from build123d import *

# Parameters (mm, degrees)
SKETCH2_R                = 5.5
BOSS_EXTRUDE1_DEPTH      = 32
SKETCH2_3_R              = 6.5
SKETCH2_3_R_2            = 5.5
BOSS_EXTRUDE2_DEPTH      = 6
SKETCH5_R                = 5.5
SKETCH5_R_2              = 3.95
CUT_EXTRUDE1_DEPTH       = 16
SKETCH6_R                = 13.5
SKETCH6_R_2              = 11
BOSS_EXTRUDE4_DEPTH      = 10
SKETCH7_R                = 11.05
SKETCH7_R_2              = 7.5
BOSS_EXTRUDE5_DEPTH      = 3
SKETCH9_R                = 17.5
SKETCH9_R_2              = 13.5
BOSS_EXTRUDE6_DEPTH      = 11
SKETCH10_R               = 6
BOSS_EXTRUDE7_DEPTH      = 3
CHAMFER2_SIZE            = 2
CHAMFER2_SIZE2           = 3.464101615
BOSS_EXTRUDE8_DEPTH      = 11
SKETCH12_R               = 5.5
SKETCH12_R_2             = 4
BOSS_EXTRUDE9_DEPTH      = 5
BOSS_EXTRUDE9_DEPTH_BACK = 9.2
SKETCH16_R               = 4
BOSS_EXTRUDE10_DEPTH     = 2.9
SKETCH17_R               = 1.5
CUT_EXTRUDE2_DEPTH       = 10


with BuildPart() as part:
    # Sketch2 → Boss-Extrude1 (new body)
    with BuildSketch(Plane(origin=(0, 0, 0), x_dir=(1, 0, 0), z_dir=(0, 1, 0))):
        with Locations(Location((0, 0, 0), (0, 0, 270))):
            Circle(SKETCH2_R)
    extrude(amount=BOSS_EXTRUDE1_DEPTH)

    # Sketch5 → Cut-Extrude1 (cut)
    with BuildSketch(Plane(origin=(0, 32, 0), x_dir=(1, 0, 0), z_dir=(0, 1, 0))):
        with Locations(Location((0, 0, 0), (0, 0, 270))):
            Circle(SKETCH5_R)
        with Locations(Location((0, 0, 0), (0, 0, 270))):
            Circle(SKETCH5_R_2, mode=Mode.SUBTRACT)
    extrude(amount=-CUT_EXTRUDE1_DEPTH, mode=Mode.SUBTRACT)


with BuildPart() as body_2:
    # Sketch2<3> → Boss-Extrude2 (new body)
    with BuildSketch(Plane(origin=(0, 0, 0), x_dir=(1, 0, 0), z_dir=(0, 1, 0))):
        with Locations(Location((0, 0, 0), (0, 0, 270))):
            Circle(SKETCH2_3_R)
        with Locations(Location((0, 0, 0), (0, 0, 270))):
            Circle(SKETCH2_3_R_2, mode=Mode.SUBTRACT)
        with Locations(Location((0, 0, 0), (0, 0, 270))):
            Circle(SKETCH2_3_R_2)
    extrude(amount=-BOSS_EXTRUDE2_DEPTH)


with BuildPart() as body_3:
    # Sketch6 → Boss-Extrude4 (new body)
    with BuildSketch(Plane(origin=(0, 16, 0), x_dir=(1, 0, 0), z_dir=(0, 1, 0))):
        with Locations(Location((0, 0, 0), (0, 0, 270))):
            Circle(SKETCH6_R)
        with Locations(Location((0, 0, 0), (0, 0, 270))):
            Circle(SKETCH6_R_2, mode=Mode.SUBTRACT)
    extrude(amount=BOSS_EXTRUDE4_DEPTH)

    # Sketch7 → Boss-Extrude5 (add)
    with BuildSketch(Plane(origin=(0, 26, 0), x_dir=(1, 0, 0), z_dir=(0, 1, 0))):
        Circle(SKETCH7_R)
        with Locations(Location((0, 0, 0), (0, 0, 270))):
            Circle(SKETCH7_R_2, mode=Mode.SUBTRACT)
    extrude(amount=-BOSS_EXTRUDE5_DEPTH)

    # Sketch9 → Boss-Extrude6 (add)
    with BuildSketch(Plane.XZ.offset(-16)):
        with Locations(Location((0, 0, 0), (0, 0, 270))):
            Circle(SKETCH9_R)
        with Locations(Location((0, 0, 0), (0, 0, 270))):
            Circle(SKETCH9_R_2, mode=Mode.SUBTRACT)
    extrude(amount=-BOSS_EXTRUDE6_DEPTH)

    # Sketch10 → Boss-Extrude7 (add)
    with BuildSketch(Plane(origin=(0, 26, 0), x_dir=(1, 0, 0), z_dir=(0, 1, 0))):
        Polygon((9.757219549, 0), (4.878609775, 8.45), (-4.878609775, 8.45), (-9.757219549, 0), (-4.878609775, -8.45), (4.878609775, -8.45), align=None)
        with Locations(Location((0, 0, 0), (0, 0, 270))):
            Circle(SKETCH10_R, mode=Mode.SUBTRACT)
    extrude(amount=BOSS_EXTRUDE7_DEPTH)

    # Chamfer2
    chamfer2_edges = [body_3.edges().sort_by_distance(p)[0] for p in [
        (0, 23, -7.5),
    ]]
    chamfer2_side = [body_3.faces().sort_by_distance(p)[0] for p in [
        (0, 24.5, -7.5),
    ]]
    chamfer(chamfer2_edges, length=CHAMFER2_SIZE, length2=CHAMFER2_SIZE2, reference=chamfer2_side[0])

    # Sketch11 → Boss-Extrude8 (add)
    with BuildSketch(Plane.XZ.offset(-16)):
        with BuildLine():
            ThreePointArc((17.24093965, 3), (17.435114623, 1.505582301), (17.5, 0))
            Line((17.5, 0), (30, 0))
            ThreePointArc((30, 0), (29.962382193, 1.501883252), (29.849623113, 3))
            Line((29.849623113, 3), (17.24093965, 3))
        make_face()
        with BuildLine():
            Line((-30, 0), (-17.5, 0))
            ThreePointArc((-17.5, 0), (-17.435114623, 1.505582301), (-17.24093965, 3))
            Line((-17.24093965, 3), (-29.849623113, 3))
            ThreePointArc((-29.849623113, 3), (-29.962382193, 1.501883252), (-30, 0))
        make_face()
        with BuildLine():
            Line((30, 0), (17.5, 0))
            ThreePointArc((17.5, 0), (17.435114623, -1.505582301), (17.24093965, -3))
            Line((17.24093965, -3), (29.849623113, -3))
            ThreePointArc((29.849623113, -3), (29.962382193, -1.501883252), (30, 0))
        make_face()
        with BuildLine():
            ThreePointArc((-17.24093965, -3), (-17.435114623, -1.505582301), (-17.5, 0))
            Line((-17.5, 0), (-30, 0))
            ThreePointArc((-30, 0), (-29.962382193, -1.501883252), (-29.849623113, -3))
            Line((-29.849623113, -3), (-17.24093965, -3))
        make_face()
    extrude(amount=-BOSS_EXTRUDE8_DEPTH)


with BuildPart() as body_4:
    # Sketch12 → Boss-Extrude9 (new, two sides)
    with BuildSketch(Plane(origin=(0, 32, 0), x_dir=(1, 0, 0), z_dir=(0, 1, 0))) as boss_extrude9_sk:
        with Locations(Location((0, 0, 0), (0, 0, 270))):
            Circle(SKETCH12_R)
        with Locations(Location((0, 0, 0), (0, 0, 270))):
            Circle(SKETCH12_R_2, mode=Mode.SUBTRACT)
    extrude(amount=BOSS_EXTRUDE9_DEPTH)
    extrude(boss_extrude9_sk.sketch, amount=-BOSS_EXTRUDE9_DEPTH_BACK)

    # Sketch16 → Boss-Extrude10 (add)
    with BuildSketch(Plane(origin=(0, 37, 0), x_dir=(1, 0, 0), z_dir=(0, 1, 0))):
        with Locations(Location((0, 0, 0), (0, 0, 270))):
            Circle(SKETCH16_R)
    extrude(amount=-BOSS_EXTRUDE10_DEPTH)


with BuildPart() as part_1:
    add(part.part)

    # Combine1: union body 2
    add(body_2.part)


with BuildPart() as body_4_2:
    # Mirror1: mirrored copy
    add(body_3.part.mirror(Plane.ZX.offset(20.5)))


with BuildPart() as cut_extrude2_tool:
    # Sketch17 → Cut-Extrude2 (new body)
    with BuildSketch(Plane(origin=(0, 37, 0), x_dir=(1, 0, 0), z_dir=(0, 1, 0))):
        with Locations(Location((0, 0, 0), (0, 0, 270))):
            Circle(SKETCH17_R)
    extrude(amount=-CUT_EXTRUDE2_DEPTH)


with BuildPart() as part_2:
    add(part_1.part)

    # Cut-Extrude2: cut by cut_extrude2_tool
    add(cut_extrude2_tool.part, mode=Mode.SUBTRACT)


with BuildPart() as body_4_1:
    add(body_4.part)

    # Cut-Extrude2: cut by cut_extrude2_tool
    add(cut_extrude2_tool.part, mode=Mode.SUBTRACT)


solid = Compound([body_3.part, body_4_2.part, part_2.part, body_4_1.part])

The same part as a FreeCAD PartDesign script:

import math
import FreeCAD as App
import Part
import Sketcher
from FreeCAD import Vector
Q = App.Units.Quantity


def edges_at(feature, points):
    """Names of the edges that pass closest to the given points."""
    edges = feature.Shape.Edges
    near = lambda p: min(range(len(edges)), key=lambda i: edges[i].distToShape(Part.Vertex(*p))[0])
    return sorted({f"Edge{near(p) + 1}" for p in points})

doc = App.newDocument("Part")
body = doc.addObject("PartDesign::Body", "Body")

# Sketch on XZ plane
sketch1 = body.newObject("Sketcher::SketchObject", "Sketch")
sketch1.AttachmentSupport = (doc.getObject("XZ_Plane"), [""])
sketch1.MapMode = "FlatFace"
sketch1.addGeometry(Part.Circle(Vector(0, 0, 0), Vector(0, 0, 1), 6), False)
sketch1.addConstraint([
    Sketcher.Constraint("Coincident", 0, 3, -1, 1),
    Sketcher.Constraint("Diameter", 0, 11.0),
])
pad1 = body.newObject("PartDesign::Pad", "Pad")
pad1.Profile = sketch1
pad1.Length = 32
pad1.Reversed = True

# Sketch on XZ plane
sketch2 = body.newObject("Sketcher::SketchObject", "Sketch001")
sketch2.AttachmentSupport = (doc.getObject("XZ_Plane"), [""])
sketch2.MapMode = "FlatFace"
sketch2.AttachmentOffset = App.Placement(Vector(0, 0, -32), App.Rotation())
sketch2.addGeometry([
    Part.Circle(Vector(0, 0, 0), Vector(0, 0, 1), 5.5),
    Part.Circle(Vector(0, 0, 0), Vector(0, 0, 1), 4),
], False)
sketch2.addConstraint([
    Sketcher.Constraint("Coincident", 0, 3, -1, 1),
    Sketcher.Constraint("Coincident", 1, 3, -1, 1),
    Sketcher.Constraint("Diameter", 0, 11.0),
    Sketcher.Constraint("Diameter", 1, 7.9),
])
pocket1 = body.newObject("PartDesign::Pocket", "Pocket")
pocket1.Profile = sketch2
pocket1.Length = 16
pocket1.Reversed = True
body2 = doc.addObject("PartDesign::Body", "Body001")

# Sketch on XZ plane
sketch3 = body2.newObject("Sketcher::SketchObject", "Sketch002")
sketch3.AttachmentSupport = (doc.getObject("XZ_Plane001"), [""])
sketch3.MapMode = "FlatFace"
sketch3.addGeometry(Part.Circle(Vector(0, 0, 0), Vector(0, 0, 1), 6), False)
sketch3.addConstraint([
    Sketcher.Constraint("Coincident", 0, 3, -1, 1),
    Sketcher.Constraint("Diameter", 0, 13.0),
])
pad2 = body2.newObject("PartDesign::Pad", "Pad001")
pad2.Profile = sketch3
pad2.Length = 6
body3 = doc.addObject("PartDesign::Body", "Body002")

# Sketch on XZ plane
sketch4 = body3.newObject("Sketcher::SketchObject", "Sketch003")
sketch4.AttachmentSupport = (doc.getObject("XZ_Plane002"), [""])
sketch4.MapMode = "FlatFace"
sketch4.AttachmentOffset = App.Placement(Vector(0, 0, -16), App.Rotation())
sketch4.addGeometry([
    Part.Circle(Vector(0, 0, 0), Vector(0, 0, 1), 14),
    Part.Circle(Vector(0, 0, 0), Vector(0, 0, 1), 11),
], False)
sketch4.addConstraint([
    Sketcher.Constraint("Coincident", 0, 3, -1, 1),
    Sketcher.Constraint("Coincident", 1, 3, -1, 1),
    Sketcher.Constraint("Diameter", 0, 27.0),
    Sketcher.Constraint("Diameter", 1, 22.0),
])
pad3 = body3.newObject("PartDesign::Pad", "Pad002")
pad3.Profile = sketch4
pad3.Length = 10
pad3.Reversed = True

# Sketch on XZ plane
sketch5 = body3.newObject("Sketcher::SketchObject", "Sketch004")
sketch5.AttachmentSupport = (doc.getObject("XZ_Plane002"), [""])
sketch5.MapMode = "FlatFace"
sketch5.AttachmentOffset = App.Placement(Vector(0, 0, -26), App.Rotation())
sketch5.addGeometry([
    Part.Circle(Vector(0, 0, 0), Vector(0, 0, 1), 11),
    Part.Circle(Vector(0, 0, 0), Vector(0, 0, 1), 8),
], False)
sketch5.addConstraint([
    Sketcher.Constraint("Coincident", 0, 3, -1, 1),
    Sketcher.Constraint("Coincident", 1, 3, -1, 1),
    Sketcher.Constraint("Diameter", 1, 15.0),
    Sketcher.Constraint("Diameter", 0, 22.1),
])
pad4 = body3.newObject("PartDesign::Pad", "Pad003")
pad4.Profile = sketch5
pad4.Length = 3

# Sketch on XZ plane
sketch6 = body3.newObject("Sketcher::SketchObject", "Sketch005")
sketch6.AttachmentSupport = (doc.getObject("XZ_Plane002"), [""])
sketch6.MapMode = "FlatFace"
sketch6.AttachmentOffset = App.Placement(Vector(0, 0, -16), App.Rotation())
sketch6.addGeometry([
    Part.Circle(Vector(0, 0, 0), Vector(0, 0, 1), 18),
    Part.Circle(Vector(0, 0, 0), Vector(0, 0, 1), 14),
], False)
sketch6.addConstraint([
    Sketcher.Constraint("Coincident", 0, 3, -1, 1),
    Sketcher.Constraint("Coincident", 1, 3, -1, 1),
    Sketcher.Constraint("Diameter", 0, 35.0),
    Sketcher.Constraint("Diameter", 1, 27.0),
])
pad5 = body3.newObject("PartDesign::Pad", "Pad004")
pad5.Profile = sketch6
pad5.Length = 11
pad5.Reversed = True

# Sketch on XZ plane
sketch7 = body3.newObject("Sketcher::SketchObject", "Sketch006")
sketch7.AttachmentSupport = (doc.getObject("XZ_Plane002"), [""])
sketch7.MapMode = "FlatFace"
sketch7.AttachmentOffset = App.Placement(Vector(0, 0, -26), App.Rotation())
sketch7.addGeometry([
    Part.LineSegment(Vector(10, 0, 0), Vector(5, -8, 0)),  # 0
    Part.LineSegment(Vector(5, -8, 0), Vector(-5, -8, 0)),  # 1
    Part.LineSegment(Vector(-5, -8, 0), Vector(-10, 0, 0)),  # 2
    Part.LineSegment(Vector(-10, 0, 0), Vector(-5, 8, 0)),  # 3
    Part.LineSegment(Vector(-5, 8, 0), Vector(5, 8, 0)),  # 4
    Part.LineSegment(Vector(5, 8, 0), Vector(10, 0, 0)),  # 5
    Part.Circle(Vector(0, 0, 0), Vector(0, 0, 1), 6),  # 6
], False)
sketch7.addConstraint([
    Sketcher.Constraint("Coincident", 0, 2, 1, 1),
    Sketcher.Constraint("Coincident", 1, 2, 2, 1),
    Sketcher.Constraint("Coincident", 2, 2, 3, 1),
    Sketcher.Constraint("Coincident", 3, 2, 4, 1),
    Sketcher.Constraint("Coincident", 4, 2, 5, 1),
    Sketcher.Constraint("Coincident", 5, 2, 0, 1),
    Sketcher.Constraint("Horizontal", 1),
    Sketcher.Constraint("Horizontal", 4),
    Sketcher.Constraint("Coincident", 6, 3, -1, 1),
    Sketcher.Constraint("Symmetric", 0, 2, 3, 2, -1, 1),
    Sketcher.Constraint("Symmetric", 2, 2, 5, 2, -1, 1),
    Sketcher.Constraint("PointOnObject", 2, 2, -1),
    Sketcher.Constraint("Parallel", 2, 5),
    Sketcher.Constraint("Vertical", 1, 2, 3, 2),
    Sketcher.Constraint("Diameter", 6, 12.0),
    Sketcher.Constraint("Angle", 0, Q("-120 deg")),
    Sketcher.Constraint("DistanceY", 1, 2, 3, 2, 16.9),
    Sketcher.Constraint("DistanceX", 1, 2, 1, 1, 9.75722),
])
pad6 = body3.newObject("PartDesign::Pad", "Pad005")
pad6.Profile = sketch7
pad6.Length = 3
pad6.Reversed = True
doc.recompute()

chamfer = body3.newObject("PartDesign::Chamfer", "Chamfer")
chamfer.Base = (pad6, edges_at(pad6, [(0, 23, -7.5)]))
chamfer.ChamferType = "Two distances"
chamfer.Size = 2
chamfer.Size2 = 3.464102
chamfer.FlipDirection = True

# Sketch on XZ plane
sketch8 = body3.newObject("Sketcher::SketchObject", "Sketch007")
sketch8.AttachmentSupport = (doc.getObject("XZ_Plane002"), [""])
sketch8.MapMode = "FlatFace"
sketch8.AttachmentOffset = App.Placement(Vector(0, 0, -16), App.Rotation())
sketch8.addGeometry([
    Part.ArcOfCircle(Part.Circle(Vector(0, 0, 0), Vector(0, 0, 1), 30), math.radians(0), math.radians(5.74)),  # 0
    Part.LineSegment(Vector(29.8, 3, 0), Vector(17.2, 3, 0)),  # 1
    Part.ArcOfCircle(Part.Circle(Vector(0, 0, 0), Vector(0, 0, 1), 17.5), math.radians(0), math.radians(9.87)),  # 2
    Part.ArcOfCircle(Part.Circle(Vector(0, 0, 0), Vector(0, 0, 1), 17.5), math.radians(-9.87), math.radians(0)),  # 3
    Part.LineSegment(Vector(17.2, -3, 0), Vector(29.8, -3, 0)),  # 4
    Part.ArcOfCircle(Part.Circle(Vector(0, 0, 0), Vector(0, 0, 1), 30), math.radians(-5.74), math.radians(0)),  # 5
    Part.LineSegment(Vector(-17.2, 3, 0), Vector(-29.8, 3, 0)),  # 6
    Part.ArcOfCircle(Part.Circle(Vector(0, 0, 0), Vector(0, 0, 1), 30), math.radians(174.26), math.radians(180)),  # 7
    Part.ArcOfCircle(Part.Circle(Vector(0, 0, 0), Vector(0, 0, 1), 30), math.radians(-180), math.radians(-174.26)),  # 8
    Part.LineSegment(Vector(-29.8, -3, 0), Vector(-17.2, -3, 0)),  # 9
    Part.ArcOfCircle(Part.Circle(Vector(0, 0, 0), Vector(0, 0, 1), 17.5), math.radians(-180), math.radians(-170.13)),  # 10
    Part.ArcOfCircle(Part.Circle(Vector(0, 0, 0), Vector(0, 0, 1), 17.5), math.radians(170.13), math.radians(180)),  # 11
], False)
sketch8.addConstraint([
    Sketcher.Constraint("Coincident", 0, 2, 1, 1),
    Sketcher.Constraint("Coincident", 1, 2, 2, 2),
    Sketcher.Constraint("Tangent", 2, 1, 3, 2),
    Sketcher.Constraint("Coincident", 3, 1, 4, 1),
    Sketcher.Constraint("Coincident", 4, 2, 5, 1),
    Sketcher.Constraint("Tangent", 5, 2, 0, 1),
    Sketcher.Constraint("Coincident", 6, 2, 7, 1),
    Sketcher.Constraint("Tangent", 7, 2, 8, 1),
    Sketcher.Constraint("Coincident", 8, 2, 9, 1),
    Sketcher.Constraint("Coincident", 9, 2, 10, 2),
    Sketcher.Constraint("Tangent", 10, 1, 11, 2),
    Sketcher.Constraint("Coincident", 11, 1, 6, 1),
    Sketcher.Constraint("Horizontal", 1),
    Sketcher.Constraint("Horizontal", 4),
    Sketcher.Constraint("Horizontal", 6),
    Sketcher.Constraint("Horizontal", 9),
    Sketcher.Constraint("Coincident", 0, 3, -1, 1),
    Sketcher.Constraint("Coincident", 2, 3, -1, 1),
    Sketcher.Constraint("Coincident", 7, 3, -1, 1),
    Sketcher.Constraint("Coincident", 10, 3, -1, 1),
    Sketcher.Constraint("Equal", 2, 3),
    Sketcher.Constraint("Equal", 0, 5),
    Sketcher.Constraint("Equal", 5, 7),
    Sketcher.Constraint("Equal", 7, 8),
    Sketcher.Constraint("Equal", 3, 10),
    Sketcher.Constraint("Equal", 10, 11),
    Sketcher.Constraint("PointOnObject", 2, 1, -1),
    Sketcher.Constraint("PointOnObject", 5, 2, -1),
    Sketcher.Constraint("PointOnObject", 7, 2, -1),
    Sketcher.Constraint("PointOnObject", 10, 1, -1),
    Sketcher.Constraint("Horizontal", 1, 2, 6, 2),
    Sketcher.Constraint("Horizontal", 4, 2, 8, 2),
    Sketcher.Constraint("Vertical", 1, 2, 3, 1),
    Sketcher.Constraint("Radius", 0, 30.0),
    Sketcher.Constraint("Radius", 2, 17.5),
    Sketcher.Constraint("DistanceY", -1, 1, 0, 2, 3.0),
])
pad7 = body3.newObject("PartDesign::Pad", "Pad006")
pad7.Profile = sketch8
pad7.Length = 11
pad7.Reversed = True
body4 = doc.addObject("PartDesign::Body", "Body003")

# Sketch on XZ plane
sketch9 = body4.newObject("Sketcher::SketchObject", "Sketch008")
sketch9.AttachmentSupport = (doc.getObject("XZ_Plane003"), [""])
sketch9.MapMode = "FlatFace"
sketch9.AttachmentOffset = App.Placement(Vector(0, 0, -32), App.Rotation())
sketch9.addGeometry([
    Part.Circle(Vector(0, 0, 0), Vector(0, 0, 1), 5.5),
    Part.Circle(Vector(0, 0, 0), Vector(0, 0, 1), 4),
], False)
sketch9.addConstraint([
    Sketcher.Constraint("Coincident", 0, 3, -1, 1),
    Sketcher.Constraint("Coincident", 1, 3, -1, 1),
    Sketcher.Constraint("Diameter", 0, 11.0),
    Sketcher.Constraint("Diameter", 1, 8.0),
])
pad8 = body4.newObject("PartDesign::Pad", "Pad007")
pad8.Profile = sketch9
pad8.Type = "TwoLengths"
pad8.Length = 5
pad8.Length2 = 9.2
pad8.Reversed = True

# Sketch on XZ plane
sketch10 = body4.newObject("Sketcher::SketchObject", "Sketch009")
sketch10.AttachmentSupport = (doc.getObject("XZ_Plane003"), [""])
sketch10.MapMode = "FlatFace"
sketch10.AttachmentOffset = App.Placement(Vector(0, 0, -37), App.Rotation())
sketch10.addGeometry(Part.Circle(Vector(0, 0, 0), Vector(0, 0, 1), 4), False)
sketch10.addConstraint([
    Sketcher.Constraint("Coincident", 0, 3, -1, 1),
    Sketcher.Constraint("Diameter", 0, 8.0),
])
pad9 = body4.newObject("PartDesign::Pad", "Pad008")
pad9.Profile = sketch10
pad9.Length = 2.9
doc.recompute()

boolean = body.newObject("PartDesign::Boolean", "Boolean")
boolean.Type = "Fuse"
boolean.addObjects([body2])
body5 = doc.addObject("PartDesign::Body", "Body004")
doc.recompute()

mirroring = doc.addObject("Part::Mirroring", "Mirroring")
mirroring.Source = body3
mirroring.Base = Vector(0, 20.5, 0)
mirroring.Normal = Vector(0, 1, 0)
body5.BaseFeature = mirroring
doc.recompute()
body6 = doc.addObject("PartDesign::Body", "Body005")

# Sketch on XZ plane
sketch11 = body6.newObject("Sketcher::SketchObject", "Sketch010")
sketch11.AttachmentSupport = (doc.getObject("XZ_Plane005"), [""])
sketch11.MapMode = "FlatFace"
sketch11.AttachmentOffset = App.Placement(Vector(0, 0, -37), App.Rotation())
sketch11.addGeometry(Part.Circle(Vector(0, 0, 0), Vector(0, 0, 1), 1.5), False)
sketch11.addConstraint([
    Sketcher.Constraint("Coincident", 0, 3, -1, 1),
    Sketcher.Constraint("Diameter", 0, 3.0),
])
pad10 = body6.newObject("PartDesign::Pad", "Pad009")
pad10.Profile = sketch11
pad10.Length = 10
doc.recompute()

body7 = doc.addObject("PartDesign::Body", "Body006")
body7.BaseFeature = body6
boolean2 = body.newObject("PartDesign::Boolean", "Boolean001")
boolean2.Type = "Cut"
boolean2.addObjects([body7])
doc.recompute()

boolean3 = body4.newObject("PartDesign::Boolean", "Boolean002")
boolean3.Type = "Cut"
boolean3.addObjects([body6])
mirroring.Visibility = False

doc.recompute()
